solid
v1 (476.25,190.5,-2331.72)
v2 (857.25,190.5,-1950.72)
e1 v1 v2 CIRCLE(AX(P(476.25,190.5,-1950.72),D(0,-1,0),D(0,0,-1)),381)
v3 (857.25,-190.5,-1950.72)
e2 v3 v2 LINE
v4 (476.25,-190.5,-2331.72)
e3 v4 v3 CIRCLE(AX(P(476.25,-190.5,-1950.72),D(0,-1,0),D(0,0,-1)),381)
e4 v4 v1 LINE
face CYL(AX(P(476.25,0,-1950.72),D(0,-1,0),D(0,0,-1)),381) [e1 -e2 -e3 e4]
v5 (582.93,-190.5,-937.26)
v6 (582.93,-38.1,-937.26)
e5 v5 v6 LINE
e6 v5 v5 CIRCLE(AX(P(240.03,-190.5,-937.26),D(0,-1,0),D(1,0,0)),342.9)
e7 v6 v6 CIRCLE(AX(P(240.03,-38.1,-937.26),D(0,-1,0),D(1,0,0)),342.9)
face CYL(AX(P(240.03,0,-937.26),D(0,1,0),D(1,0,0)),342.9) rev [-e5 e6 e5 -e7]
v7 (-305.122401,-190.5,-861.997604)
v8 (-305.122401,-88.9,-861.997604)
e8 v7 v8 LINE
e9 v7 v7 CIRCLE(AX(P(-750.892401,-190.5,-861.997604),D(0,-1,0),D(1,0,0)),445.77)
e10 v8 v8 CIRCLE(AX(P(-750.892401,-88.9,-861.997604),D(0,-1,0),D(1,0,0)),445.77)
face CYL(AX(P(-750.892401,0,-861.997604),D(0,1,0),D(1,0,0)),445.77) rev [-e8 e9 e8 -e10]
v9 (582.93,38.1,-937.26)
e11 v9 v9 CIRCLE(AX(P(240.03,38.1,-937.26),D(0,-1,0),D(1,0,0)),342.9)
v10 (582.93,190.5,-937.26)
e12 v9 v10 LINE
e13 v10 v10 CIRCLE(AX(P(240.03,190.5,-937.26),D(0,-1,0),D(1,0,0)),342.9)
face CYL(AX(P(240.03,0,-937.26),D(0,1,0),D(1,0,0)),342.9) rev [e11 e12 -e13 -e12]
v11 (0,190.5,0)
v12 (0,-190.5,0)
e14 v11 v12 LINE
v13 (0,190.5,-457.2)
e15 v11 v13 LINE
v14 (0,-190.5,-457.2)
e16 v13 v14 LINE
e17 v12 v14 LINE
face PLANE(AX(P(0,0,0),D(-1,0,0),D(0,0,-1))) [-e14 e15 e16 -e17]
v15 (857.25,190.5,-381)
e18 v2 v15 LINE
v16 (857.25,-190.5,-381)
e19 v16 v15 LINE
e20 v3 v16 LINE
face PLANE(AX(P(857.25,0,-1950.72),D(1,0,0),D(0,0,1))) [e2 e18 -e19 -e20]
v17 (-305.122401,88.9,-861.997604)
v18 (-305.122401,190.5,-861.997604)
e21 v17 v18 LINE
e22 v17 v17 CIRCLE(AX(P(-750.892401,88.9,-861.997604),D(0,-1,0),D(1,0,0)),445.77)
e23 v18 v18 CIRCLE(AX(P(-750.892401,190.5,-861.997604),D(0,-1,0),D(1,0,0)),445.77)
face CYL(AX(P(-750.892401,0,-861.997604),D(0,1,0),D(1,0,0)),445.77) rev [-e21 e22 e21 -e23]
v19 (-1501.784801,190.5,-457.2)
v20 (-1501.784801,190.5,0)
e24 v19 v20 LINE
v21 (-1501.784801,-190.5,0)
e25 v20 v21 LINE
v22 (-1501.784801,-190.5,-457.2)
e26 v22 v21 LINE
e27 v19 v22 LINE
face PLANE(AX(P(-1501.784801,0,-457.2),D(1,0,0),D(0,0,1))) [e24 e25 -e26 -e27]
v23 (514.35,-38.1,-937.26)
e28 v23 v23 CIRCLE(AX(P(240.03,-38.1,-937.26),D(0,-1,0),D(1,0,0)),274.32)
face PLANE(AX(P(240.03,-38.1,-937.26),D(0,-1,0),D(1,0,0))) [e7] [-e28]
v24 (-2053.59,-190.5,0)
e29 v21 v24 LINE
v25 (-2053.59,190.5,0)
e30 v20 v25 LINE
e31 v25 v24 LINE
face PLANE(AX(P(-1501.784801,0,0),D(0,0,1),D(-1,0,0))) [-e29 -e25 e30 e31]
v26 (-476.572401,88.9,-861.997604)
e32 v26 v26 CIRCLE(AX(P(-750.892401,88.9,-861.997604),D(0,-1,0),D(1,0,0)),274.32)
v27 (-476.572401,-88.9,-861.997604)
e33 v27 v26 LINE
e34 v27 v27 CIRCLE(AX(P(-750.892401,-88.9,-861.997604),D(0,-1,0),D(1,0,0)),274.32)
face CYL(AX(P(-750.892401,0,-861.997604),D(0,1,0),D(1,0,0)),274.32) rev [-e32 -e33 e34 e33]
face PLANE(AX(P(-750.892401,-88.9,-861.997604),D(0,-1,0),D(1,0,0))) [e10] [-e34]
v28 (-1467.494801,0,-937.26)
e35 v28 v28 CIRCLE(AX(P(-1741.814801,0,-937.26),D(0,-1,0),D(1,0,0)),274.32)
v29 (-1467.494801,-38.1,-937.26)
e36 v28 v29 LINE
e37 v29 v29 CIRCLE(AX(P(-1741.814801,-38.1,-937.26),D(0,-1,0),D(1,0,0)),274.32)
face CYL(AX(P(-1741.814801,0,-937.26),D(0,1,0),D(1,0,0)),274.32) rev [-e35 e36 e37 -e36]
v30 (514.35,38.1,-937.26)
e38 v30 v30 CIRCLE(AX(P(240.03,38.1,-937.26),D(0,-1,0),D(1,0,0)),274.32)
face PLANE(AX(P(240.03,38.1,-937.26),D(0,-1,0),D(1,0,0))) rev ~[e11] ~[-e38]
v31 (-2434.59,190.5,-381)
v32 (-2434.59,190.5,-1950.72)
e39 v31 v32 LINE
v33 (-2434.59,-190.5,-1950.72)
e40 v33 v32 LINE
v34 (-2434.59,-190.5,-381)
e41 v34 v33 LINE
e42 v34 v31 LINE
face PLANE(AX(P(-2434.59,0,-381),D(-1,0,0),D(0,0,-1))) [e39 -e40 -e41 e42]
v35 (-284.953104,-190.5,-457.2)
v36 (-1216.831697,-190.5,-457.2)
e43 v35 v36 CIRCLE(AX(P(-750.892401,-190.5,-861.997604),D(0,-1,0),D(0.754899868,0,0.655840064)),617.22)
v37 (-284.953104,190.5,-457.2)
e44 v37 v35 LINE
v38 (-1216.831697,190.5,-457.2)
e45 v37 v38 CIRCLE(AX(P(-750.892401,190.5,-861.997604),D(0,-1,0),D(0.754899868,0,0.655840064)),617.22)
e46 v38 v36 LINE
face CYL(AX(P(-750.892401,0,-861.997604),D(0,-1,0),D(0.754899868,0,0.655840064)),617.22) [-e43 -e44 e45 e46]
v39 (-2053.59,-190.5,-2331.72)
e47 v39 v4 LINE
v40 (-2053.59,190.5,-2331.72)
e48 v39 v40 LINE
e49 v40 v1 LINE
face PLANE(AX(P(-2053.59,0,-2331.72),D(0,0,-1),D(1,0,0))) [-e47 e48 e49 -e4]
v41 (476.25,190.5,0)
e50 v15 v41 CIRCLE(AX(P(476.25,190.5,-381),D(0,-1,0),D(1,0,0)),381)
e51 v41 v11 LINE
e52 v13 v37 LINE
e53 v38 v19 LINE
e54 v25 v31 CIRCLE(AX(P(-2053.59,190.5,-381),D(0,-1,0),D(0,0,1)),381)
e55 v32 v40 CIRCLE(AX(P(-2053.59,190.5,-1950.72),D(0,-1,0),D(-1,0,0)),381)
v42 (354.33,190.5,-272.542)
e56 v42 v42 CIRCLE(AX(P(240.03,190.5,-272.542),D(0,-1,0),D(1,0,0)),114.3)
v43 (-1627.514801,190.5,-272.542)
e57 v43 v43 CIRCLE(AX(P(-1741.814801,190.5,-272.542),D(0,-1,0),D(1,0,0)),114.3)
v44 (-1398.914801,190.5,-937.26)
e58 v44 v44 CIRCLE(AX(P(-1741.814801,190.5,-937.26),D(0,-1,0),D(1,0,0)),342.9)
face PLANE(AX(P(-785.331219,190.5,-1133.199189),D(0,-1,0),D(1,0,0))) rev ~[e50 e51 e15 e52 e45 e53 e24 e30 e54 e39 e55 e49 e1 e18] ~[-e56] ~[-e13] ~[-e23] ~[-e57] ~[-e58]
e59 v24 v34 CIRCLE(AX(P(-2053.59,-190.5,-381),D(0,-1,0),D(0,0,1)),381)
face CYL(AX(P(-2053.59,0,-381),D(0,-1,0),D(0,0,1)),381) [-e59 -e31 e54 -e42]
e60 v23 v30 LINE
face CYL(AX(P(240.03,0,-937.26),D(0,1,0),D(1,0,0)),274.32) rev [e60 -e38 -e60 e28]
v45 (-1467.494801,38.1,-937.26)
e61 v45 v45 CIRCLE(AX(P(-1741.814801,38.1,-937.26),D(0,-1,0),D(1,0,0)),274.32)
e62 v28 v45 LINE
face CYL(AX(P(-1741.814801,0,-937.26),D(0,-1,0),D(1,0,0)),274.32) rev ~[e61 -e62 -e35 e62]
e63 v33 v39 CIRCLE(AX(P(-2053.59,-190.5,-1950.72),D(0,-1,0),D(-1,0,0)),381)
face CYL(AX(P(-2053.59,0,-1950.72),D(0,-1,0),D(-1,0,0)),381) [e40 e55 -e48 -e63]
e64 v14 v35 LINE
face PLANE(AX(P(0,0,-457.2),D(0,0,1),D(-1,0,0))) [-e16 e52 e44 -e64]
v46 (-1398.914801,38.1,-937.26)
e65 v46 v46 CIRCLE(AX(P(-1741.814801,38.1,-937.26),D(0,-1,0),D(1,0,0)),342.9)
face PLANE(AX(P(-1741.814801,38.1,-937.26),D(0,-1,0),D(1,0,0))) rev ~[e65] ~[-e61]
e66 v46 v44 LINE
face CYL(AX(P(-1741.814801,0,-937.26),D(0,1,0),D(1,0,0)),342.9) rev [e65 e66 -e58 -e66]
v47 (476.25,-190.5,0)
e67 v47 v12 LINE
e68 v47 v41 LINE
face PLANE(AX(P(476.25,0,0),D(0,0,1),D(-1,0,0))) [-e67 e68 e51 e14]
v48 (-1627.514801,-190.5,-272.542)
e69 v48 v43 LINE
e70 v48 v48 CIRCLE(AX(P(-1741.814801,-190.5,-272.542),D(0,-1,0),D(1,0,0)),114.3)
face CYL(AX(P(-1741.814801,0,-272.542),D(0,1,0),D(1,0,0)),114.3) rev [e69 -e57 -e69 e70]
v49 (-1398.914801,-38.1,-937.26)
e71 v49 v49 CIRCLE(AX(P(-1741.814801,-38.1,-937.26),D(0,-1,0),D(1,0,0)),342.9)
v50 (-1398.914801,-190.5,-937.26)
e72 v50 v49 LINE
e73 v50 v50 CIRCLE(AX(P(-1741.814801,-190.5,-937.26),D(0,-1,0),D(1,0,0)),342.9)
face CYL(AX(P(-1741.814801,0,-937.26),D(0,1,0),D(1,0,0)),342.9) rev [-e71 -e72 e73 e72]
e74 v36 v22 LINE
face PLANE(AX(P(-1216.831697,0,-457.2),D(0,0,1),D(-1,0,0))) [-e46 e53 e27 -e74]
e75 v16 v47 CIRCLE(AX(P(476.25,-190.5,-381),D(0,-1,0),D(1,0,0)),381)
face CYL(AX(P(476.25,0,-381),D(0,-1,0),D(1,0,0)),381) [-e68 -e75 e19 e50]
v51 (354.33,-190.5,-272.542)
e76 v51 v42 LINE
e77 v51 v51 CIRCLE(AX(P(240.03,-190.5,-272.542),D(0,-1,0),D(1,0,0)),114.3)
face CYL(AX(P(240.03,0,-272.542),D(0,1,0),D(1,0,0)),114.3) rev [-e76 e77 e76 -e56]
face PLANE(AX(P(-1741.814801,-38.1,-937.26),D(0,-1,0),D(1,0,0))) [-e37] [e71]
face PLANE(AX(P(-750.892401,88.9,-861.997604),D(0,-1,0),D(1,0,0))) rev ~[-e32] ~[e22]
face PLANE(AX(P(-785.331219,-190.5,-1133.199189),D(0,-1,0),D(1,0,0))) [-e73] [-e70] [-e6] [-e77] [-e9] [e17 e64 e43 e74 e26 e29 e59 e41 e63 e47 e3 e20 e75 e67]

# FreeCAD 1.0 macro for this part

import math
import FreeCAD as App
import Part
import Sketcher

V = App.Vector
Q = App.Units.Quantity

doc = App.newDocument("Part")
body = doc.addObject("PartDesign::Body", "Body")

# Sketch on XZ plane
sketch1 = body.newObject("Sketcher::SketchObject", "Sketch")
sketch1.AttachmentSupport = (doc.getObject("XZ_Plane"), [""])
sketch1.MapMode = "FlatFace"
sketch1.addGeometry([
    Part.LineSegment(V(476, 0, 0), V(0, 0, 0)),  # 0
    Part.LineSegment(V(0, 0, 0), V(0, -457, 0)),  # 1
    Part.LineSegment(V(0, -457, 0), V(-285, -457, 0)),  # 2
    Part.ArcOfCircle(Part.Circle(V(-751, -862, 0), V(0, 0, 1), 617), math.radians(41), math.radians(139)),  # 3
    Part.LineSegment(V(-1217, -457, 0), V(-1502, -457, 0)),  # 4
    Part.LineSegment(V(-1502, -457, 0), V(-1502, 0, 0)),  # 5
    Part.LineSegment(V(-1502, 0, 0), V(-2054, 0, 0)),  # 6
    Part.ArcOfCircle(Part.Circle(V(-2054, -381, 0), V(0, 0, 1), 381), math.radians(90), math.radians(180)),  # 7
    Part.LineSegment(V(-2435, -381, 0), V(-2435, -1951, 0)),  # 8
    Part.ArcOfCircle(Part.Circle(V(-2054, -1951, 0), V(0, 0, 1), 381), math.radians(180), math.radians(270)),  # 9
    Part.LineSegment(V(-2054, -2332, 0), V(476, -2332, 0)),  # 10
    Part.ArcOfCircle(Part.Circle(V(476, -1951, 0), V(0, 0, 1), 381), math.radians(-90), math.radians(0)),  # 11
    Part.LineSegment(V(857, -1951, 0), V(857, -381, 0)),  # 12
    Part.ArcOfCircle(Part.Circle(V(476, -381, 0), V(0, 0, 1), 381), math.radians(0), math.radians(90)),  # 13
    Part.Circle(V(-1742, -937, 0), V(0, 0, 1), 343),  # 14
    Part.Circle(V(-751, -862, 0), V(0, 0, 1), 446),  # 15
    Part.Circle(V(240, -937, 0), V(0, 0, 1), 343),  # 16
    Part.Circle(V(-1742, -273, 0), V(0, 0, 1), 114),  # 17
    Part.Circle(V(240, -273, 0), V(0, 0, 1), 114),  # 18
], False)
sketch1.addConstraint([
    Sketcher.Constraint("Coincident", 0, 2, 1, 1),
    Sketcher.Constraint("Coincident", 1, 2, 2, 1),
    Sketcher.Constraint("Coincident", 2, 2, 3, 1),
    Sketcher.Constraint("Coincident", 3, 2, 4, 1),
    Sketcher.Constraint("Coincident", 4, 2, 5, 1),
    Sketcher.Constraint("Coincident", 5, 2, 6, 1),
    Sketcher.Constraint("Tangent", 6, 2, 7, 1),
    Sketcher.Constraint("Tangent", 7, 2, 8, 1),
    Sketcher.Constraint("Tangent", 8, 2, 9, 1),
    Sketcher.Constraint("Tangent", 9, 2, 10, 1),
    Sketcher.Constraint("Tangent", 10, 2, 11, 1),
    Sketcher.Constraint("Tangent", 11, 2, 12, 1),
    Sketcher.Constraint("Tangent", 12, 2, 13, 1),
    Sketcher.Constraint("Tangent", 13, 2, 0, 1),
    Sketcher.Constraint("Horizontal", 0),
    Sketcher.Constraint("Vertical", 1),
    Sketcher.Constraint("Horizontal", 2),
    Sketcher.Constraint("Horizontal", 4),
    Sketcher.Constraint("Vertical", 5),
    Sketcher.Constraint("Horizontal", 6),
    Sketcher.Constraint("Vertical", 8),
    Sketcher.Constraint("Horizontal", 10),
    Sketcher.Constraint("Vertical", 12),
    Sketcher.Constraint("Coincident", 0, 2, -1, 1),
    Sketcher.Constraint("Coincident", 15, 3, 3, 3),
    Sketcher.Constraint("Equal", 7, 9),
    Sketcher.Constraint("Equal", 9, 11),
    Sketcher.Constraint("Equal", 11, 13),
    Sketcher.Constraint("Equal", 14, 16),
    Sketcher.Constraint("Equal", 17, 18),
    Sketcher.Constraint("PointOnObject", 5, 2, -1),
    Sketcher.Constraint("Horizontal", 14, 3, 16, 3),
    Sketcher.Constraint("Horizontal", 17, 3, 18, 3),
    Sketcher.Constraint("Vertical", 14, 3, 17, 3),
    Sketcher.Constraint("Vertical", 16, 3, 18, 3),
    Sketcher.Constraint("Equal", 2, 4),
    Sketcher.Constraint("Equal", 1, 5),
    Sketcher.Constraint("Diameter", 14, Q("27 in")),
    Sketcher.Constraint("Diameter", 17, Q("9 in")),
    Sketcher.Constraint("Radius", 7, Q("15 in")),
    Sketcher.Constraint("Diameter", 15, Q("35.1 in")),
    Sketcher.Constraint("Radius", 3, Q("24.3 in")),
    Sketcher.Constraint("DistanceY", 1, 2, 1, 1, Q("18 in")),
    Sketcher.Constraint("DistanceX", 10, 1, 10, 2, Q("99.6 in")),
    Sketcher.Constraint("DistanceY", 8, 2, 8, 1, Q("61.8 in")),
    Sketcher.Constraint("DistanceX", 0, 2, 0, 1, Q("18.75 in")),
    Sketcher.Constraint("DistanceY", 14, 3, -1, 1, Q("36.9 in")),
    Sketcher.Constraint("DistanceX", 16, 3, 13, 3, Q("9.3 in")),
    Sketcher.Constraint("DistanceY", 17, 3, -1, 1, Q("10.73 in")),
    Sketcher.Constraint("DistanceX", 17, 3, 4, 2, Q("9.45 in")),
    Sketcher.Constraint("DistanceX", 6, 2, 6, 1, Q("551.805199 mm")),
    Sketcher.Constraint("DistanceX", 2, 2, 2, 1, Q("284.953104 mm")),
])
pad1 = body.newObject("PartDesign::Pad", "Pad")
pad1.Profile = sketch1
pad1.Length = Q("15 in")
pad1.Midplane = True

# Sketch on XZ plane
sketch2 = body.newObject("Sketcher::SketchObject", "Sketch001")
sketch2.AttachmentSupport = (doc.getObject("XZ_Plane"), [""])
sketch2.MapMode = "FlatFace"
sketch2.addGeometry([
    Part.Circle(V(-751, -862, 0), V(0, 0, 1), 446),
    Part.Circle(V(-751, -862, 0), V(0, 0, 1), 274),
], False)
sketch2.addConstraint([
    Sketcher.Constraint("Coincident", 1, 3, 0, 3),
    Sketcher.Constraint("Diameter", 0, Q("35.1 in")),
    Sketcher.Constraint("Diameter", 1, Q("21.6 in")),
    Sketcher.Constraint("DistanceX", 0, 3, -1, 1, Q("750.892401 mm")),
    Sketcher.Constraint("DistanceY", 0, 3, -1, 1, Q("861.997604 mm")),
])
pad2 = body.newObject("PartDesign::Pad", "Pad001")
pad2.Profile = sketch2
pad2.Length = Q("7 in")
pad2.Midplane = True

# Sketch on XZ plane
sketch3 = body.newObject("Sketcher::SketchObject", "Sketch002")
sketch3.AttachmentSupport = (doc.getObject("XZ_Plane"), [""])
sketch3.MapMode = "FlatFace"
sketch3.addGeometry([
    Part.Circle(V(-1742, -937, 0), V(0, 0, 1), 343),
    Part.Circle(V(-1742, -937, 0), V(0, 0, 1), 274),
    Part.Circle(V(240, -937, 0), V(0, 0, 1), 343),
    Part.Circle(V(240, -937, 0), V(0, 0, 1), 274),
], False)
sketch3.addConstraint([
    Sketcher.Constraint("Coincident", 1, 3, 0, 3),
    Sketcher.Constraint("Coincident", 3, 3, 2, 3),
    Sketcher.Constraint("Equal", 0, 2),
    Sketcher.Constraint("Equal", 1, 3),
    Sketcher.Constraint("Horizontal", 1, 3, 2, 3),
    Sketcher.Constraint("Diameter", 0, Q("27 in")),
    Sketcher.Constraint("Diameter", 1, Q("21.6 in")),
    Sketcher.Constraint("DistanceY", 0, 3, -1, 1, Q("36.9 in")),
    Sketcher.Constraint("DistanceX", -1, 1, 2, 3, Q("9.45 in")),
    Sketcher.Constraint("DistanceX", 0, 3, -1, 1, Q("1741.814801 mm")),
])
pad3 = body.newObject("PartDesign::Pad", "Pad002")
pad3.Profile = sketch3
pad3.Length = Q("3 in")
pad3.Midplane = True

doc.recompute()
